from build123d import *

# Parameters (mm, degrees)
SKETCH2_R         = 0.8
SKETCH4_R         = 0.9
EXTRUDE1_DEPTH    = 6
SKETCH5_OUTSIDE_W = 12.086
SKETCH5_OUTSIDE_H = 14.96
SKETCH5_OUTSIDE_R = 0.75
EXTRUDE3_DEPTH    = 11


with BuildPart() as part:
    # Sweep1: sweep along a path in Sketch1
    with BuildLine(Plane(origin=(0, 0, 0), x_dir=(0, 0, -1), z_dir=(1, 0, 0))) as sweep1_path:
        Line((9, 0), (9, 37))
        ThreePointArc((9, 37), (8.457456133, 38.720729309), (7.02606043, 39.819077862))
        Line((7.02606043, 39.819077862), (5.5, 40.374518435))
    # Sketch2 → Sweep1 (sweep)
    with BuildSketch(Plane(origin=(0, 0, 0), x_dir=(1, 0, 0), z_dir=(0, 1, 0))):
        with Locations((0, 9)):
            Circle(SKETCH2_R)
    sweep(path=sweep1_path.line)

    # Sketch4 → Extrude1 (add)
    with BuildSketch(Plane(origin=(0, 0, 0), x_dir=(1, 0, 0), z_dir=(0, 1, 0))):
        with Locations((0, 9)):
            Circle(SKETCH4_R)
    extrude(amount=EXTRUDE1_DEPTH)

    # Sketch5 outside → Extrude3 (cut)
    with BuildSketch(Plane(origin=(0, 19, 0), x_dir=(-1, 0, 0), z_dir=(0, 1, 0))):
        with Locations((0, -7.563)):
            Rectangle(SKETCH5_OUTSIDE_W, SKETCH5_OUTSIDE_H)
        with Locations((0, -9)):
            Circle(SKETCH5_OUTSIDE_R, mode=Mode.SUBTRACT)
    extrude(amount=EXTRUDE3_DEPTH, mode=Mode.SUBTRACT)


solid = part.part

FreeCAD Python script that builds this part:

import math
import FreeCAD as App
import Part
import Sketcher
from FreeCAD import Vector
Q = App.Units.Quantity

doc = App.newDocument("Part")
body = doc.addObject("PartDesign::Body", "Body")

# Sketch on XZ plane
sketch1 = body.newObject("Sketcher::SketchObject", "Sketch")
sketch1.AttachmentSupport = (doc.getObject("XZ_Plane"), [""])
sketch1.MapMode = "FlatFace"
sketch1.addGeometry(Part.Circle(Vector(0, -9, 0), Vector(0, 0, 1), 0.8), False)
sketch1.addConstraint([
    Sketcher.Constraint("PointOnObject", 0, 3, -2),
    Sketcher.Constraint("Diameter", 0, Q("1.6 mm")),
    Sketcher.Constraint("DistanceY", 0, 3, -1, 1, Q("9 mm")),
])

# Sketch on YZ plane
sketch2 = body.newObject("Sketcher::SketchObject", "Sketch001")
sketch2.AttachmentSupport = (doc.getObject("YZ_Plane"), [""])
sketch2.MapMode = "FlatFace"
sketch2.addGeometry([
    Part.LineSegment(Vector(0, -9, 0), Vector(37, -9, 0)),
    Part.ArcOfCircle(Part.Circle(Vector(37, -6, 0), Vector(0, 0, 1), 3), math.radians(-90), math.radians(-20)),
    Part.LineSegment(Vector(39.819078, -7.02606, 0), Vector(40.374518, -5.5, 0)),
], False)
sketch2.addConstraint([
    Sketcher.Constraint("Tangent", 0, 2, 1, 1),
    Sketcher.Constraint("Tangent", 1, 2, 2, 1),
    Sketcher.Constraint("Horizontal", 0),
    Sketcher.Constraint("PointOnObject", 0, 1, -2),
    Sketcher.Constraint("Radius", 1, Q("3 mm")),
    Sketcher.Constraint("DistanceX", 0, 1, 0, 2, Q("37 mm")),
    Sketcher.Constraint("Angle", 2, Q("70 deg")),
    Sketcher.Constraint("DistanceY", 1, 3, -1, 1, Q("6 mm")),
    Sketcher.Constraint("DistanceY", 2, 2, -1, 1, Q("5.5 mm")),
])
doc.recompute()

additivepipe = body.newObject("PartDesign::AdditivePipe", "AdditivePipe")
additivepipe.Profile = sketch1
additivepipe.Spine = (sketch2, ["Edge1", "Edge2", "Edge3"])

# Sketch on XZ plane
sketch3 = body.newObject("Sketcher::SketchObject", "Sketch002")
sketch3.AttachmentSupport = (doc.getObject("XZ_Plane"), [""])
sketch3.MapMode = "FlatFace"
sketch3.addGeometry(Part.Circle(Vector(0, -9, 0), Vector(0, 0, 1), 0.9), False)
sketch3.addConstraint([
    Sketcher.Constraint("PointOnObject", 0, 3, -2),
    Sketcher.Constraint("Diameter", 0, Q("1.8 mm")),
    Sketcher.Constraint("DistanceY", 0, 3, -1, 1, Q("9 mm")),
])
pad1 = body.newObject("PartDesign::Pad", "Pad")
pad1.Profile = sketch3
pad1.Length = 6
pad1.Reversed = True

# Sketch on XZ plane
sketch4 = body.newObject("Sketcher::SketchObject", "Sketch003")
sketch4.AttachmentSupport = (doc.getObject("XZ_Plane"), [""])
sketch4.MapMode = "FlatFace"
sketch4.AttachmentOffset = App.Placement(Vector(0, 0, -19), App.Rotation())
sketch4.addGeometry([
    Part.LineSegment(Vector(6.043, -0.083, 0), Vector(6.043, -15.043, 0)),  # 0
    Part.LineSegment(Vector(6.043, -15.043, 0), Vector(-6.043, -15.043, 0)),  # 1
    Part.LineSegment(Vector(-6.043, -15.043, 0), Vector(-6.043, -0.083, 0)),  # 2
    Part.LineSegment(Vector(-6.043, -0.083, 0), Vector(6.043, -0.083, 0)),  # 3
    Part.Circle(Vector(0, -9, 0), Vector(0, 0, 1), 0.75),  # 4
], False)
sketch4.addConstraint([
    Sketcher.Constraint("Coincident", 0, 2, 1, 1),
    Sketcher.Constraint("Coincident", 1, 2, 2, 1),
    Sketcher.Constraint("Coincident", 2, 2, 3, 1),
    Sketcher.Constraint("Coincident", 3, 2, 0, 1),
    Sketcher.Constraint("Vertical", 0),
    Sketcher.Constraint("Horizontal", 1),
    Sketcher.Constraint("Vertical", 2),
    Sketcher.Constraint("Horizontal", 3),
    Sketcher.Constraint("PointOnObject", 4, 3, -2),
    Sketcher.Constraint("Diameter", 4, Q("1.5 mm")),
    Sketcher.Constraint("DistanceY", 4, 3, -1, 1, Q("9 mm")),
    Sketcher.Constraint("DistanceY", 0, 2, 0, 1, Q("14.96 mm")),
    Sketcher.Constraint("DistanceX", 1, 2, 1, 1, Q("12.086 mm")),
    Sketcher.Constraint("DistanceX", -1, 1, 0, 2, Q("6.043 mm")),
    Sketcher.Constraint("DistanceY", 0, 2, -1, 1, Q("15.043 mm")),
])
pocket1 = body.newObject("PartDesign::Pocket", "Pocket")
pocket1.Profile = sketch4
pocket1.Length = 11

doc.recompute()
